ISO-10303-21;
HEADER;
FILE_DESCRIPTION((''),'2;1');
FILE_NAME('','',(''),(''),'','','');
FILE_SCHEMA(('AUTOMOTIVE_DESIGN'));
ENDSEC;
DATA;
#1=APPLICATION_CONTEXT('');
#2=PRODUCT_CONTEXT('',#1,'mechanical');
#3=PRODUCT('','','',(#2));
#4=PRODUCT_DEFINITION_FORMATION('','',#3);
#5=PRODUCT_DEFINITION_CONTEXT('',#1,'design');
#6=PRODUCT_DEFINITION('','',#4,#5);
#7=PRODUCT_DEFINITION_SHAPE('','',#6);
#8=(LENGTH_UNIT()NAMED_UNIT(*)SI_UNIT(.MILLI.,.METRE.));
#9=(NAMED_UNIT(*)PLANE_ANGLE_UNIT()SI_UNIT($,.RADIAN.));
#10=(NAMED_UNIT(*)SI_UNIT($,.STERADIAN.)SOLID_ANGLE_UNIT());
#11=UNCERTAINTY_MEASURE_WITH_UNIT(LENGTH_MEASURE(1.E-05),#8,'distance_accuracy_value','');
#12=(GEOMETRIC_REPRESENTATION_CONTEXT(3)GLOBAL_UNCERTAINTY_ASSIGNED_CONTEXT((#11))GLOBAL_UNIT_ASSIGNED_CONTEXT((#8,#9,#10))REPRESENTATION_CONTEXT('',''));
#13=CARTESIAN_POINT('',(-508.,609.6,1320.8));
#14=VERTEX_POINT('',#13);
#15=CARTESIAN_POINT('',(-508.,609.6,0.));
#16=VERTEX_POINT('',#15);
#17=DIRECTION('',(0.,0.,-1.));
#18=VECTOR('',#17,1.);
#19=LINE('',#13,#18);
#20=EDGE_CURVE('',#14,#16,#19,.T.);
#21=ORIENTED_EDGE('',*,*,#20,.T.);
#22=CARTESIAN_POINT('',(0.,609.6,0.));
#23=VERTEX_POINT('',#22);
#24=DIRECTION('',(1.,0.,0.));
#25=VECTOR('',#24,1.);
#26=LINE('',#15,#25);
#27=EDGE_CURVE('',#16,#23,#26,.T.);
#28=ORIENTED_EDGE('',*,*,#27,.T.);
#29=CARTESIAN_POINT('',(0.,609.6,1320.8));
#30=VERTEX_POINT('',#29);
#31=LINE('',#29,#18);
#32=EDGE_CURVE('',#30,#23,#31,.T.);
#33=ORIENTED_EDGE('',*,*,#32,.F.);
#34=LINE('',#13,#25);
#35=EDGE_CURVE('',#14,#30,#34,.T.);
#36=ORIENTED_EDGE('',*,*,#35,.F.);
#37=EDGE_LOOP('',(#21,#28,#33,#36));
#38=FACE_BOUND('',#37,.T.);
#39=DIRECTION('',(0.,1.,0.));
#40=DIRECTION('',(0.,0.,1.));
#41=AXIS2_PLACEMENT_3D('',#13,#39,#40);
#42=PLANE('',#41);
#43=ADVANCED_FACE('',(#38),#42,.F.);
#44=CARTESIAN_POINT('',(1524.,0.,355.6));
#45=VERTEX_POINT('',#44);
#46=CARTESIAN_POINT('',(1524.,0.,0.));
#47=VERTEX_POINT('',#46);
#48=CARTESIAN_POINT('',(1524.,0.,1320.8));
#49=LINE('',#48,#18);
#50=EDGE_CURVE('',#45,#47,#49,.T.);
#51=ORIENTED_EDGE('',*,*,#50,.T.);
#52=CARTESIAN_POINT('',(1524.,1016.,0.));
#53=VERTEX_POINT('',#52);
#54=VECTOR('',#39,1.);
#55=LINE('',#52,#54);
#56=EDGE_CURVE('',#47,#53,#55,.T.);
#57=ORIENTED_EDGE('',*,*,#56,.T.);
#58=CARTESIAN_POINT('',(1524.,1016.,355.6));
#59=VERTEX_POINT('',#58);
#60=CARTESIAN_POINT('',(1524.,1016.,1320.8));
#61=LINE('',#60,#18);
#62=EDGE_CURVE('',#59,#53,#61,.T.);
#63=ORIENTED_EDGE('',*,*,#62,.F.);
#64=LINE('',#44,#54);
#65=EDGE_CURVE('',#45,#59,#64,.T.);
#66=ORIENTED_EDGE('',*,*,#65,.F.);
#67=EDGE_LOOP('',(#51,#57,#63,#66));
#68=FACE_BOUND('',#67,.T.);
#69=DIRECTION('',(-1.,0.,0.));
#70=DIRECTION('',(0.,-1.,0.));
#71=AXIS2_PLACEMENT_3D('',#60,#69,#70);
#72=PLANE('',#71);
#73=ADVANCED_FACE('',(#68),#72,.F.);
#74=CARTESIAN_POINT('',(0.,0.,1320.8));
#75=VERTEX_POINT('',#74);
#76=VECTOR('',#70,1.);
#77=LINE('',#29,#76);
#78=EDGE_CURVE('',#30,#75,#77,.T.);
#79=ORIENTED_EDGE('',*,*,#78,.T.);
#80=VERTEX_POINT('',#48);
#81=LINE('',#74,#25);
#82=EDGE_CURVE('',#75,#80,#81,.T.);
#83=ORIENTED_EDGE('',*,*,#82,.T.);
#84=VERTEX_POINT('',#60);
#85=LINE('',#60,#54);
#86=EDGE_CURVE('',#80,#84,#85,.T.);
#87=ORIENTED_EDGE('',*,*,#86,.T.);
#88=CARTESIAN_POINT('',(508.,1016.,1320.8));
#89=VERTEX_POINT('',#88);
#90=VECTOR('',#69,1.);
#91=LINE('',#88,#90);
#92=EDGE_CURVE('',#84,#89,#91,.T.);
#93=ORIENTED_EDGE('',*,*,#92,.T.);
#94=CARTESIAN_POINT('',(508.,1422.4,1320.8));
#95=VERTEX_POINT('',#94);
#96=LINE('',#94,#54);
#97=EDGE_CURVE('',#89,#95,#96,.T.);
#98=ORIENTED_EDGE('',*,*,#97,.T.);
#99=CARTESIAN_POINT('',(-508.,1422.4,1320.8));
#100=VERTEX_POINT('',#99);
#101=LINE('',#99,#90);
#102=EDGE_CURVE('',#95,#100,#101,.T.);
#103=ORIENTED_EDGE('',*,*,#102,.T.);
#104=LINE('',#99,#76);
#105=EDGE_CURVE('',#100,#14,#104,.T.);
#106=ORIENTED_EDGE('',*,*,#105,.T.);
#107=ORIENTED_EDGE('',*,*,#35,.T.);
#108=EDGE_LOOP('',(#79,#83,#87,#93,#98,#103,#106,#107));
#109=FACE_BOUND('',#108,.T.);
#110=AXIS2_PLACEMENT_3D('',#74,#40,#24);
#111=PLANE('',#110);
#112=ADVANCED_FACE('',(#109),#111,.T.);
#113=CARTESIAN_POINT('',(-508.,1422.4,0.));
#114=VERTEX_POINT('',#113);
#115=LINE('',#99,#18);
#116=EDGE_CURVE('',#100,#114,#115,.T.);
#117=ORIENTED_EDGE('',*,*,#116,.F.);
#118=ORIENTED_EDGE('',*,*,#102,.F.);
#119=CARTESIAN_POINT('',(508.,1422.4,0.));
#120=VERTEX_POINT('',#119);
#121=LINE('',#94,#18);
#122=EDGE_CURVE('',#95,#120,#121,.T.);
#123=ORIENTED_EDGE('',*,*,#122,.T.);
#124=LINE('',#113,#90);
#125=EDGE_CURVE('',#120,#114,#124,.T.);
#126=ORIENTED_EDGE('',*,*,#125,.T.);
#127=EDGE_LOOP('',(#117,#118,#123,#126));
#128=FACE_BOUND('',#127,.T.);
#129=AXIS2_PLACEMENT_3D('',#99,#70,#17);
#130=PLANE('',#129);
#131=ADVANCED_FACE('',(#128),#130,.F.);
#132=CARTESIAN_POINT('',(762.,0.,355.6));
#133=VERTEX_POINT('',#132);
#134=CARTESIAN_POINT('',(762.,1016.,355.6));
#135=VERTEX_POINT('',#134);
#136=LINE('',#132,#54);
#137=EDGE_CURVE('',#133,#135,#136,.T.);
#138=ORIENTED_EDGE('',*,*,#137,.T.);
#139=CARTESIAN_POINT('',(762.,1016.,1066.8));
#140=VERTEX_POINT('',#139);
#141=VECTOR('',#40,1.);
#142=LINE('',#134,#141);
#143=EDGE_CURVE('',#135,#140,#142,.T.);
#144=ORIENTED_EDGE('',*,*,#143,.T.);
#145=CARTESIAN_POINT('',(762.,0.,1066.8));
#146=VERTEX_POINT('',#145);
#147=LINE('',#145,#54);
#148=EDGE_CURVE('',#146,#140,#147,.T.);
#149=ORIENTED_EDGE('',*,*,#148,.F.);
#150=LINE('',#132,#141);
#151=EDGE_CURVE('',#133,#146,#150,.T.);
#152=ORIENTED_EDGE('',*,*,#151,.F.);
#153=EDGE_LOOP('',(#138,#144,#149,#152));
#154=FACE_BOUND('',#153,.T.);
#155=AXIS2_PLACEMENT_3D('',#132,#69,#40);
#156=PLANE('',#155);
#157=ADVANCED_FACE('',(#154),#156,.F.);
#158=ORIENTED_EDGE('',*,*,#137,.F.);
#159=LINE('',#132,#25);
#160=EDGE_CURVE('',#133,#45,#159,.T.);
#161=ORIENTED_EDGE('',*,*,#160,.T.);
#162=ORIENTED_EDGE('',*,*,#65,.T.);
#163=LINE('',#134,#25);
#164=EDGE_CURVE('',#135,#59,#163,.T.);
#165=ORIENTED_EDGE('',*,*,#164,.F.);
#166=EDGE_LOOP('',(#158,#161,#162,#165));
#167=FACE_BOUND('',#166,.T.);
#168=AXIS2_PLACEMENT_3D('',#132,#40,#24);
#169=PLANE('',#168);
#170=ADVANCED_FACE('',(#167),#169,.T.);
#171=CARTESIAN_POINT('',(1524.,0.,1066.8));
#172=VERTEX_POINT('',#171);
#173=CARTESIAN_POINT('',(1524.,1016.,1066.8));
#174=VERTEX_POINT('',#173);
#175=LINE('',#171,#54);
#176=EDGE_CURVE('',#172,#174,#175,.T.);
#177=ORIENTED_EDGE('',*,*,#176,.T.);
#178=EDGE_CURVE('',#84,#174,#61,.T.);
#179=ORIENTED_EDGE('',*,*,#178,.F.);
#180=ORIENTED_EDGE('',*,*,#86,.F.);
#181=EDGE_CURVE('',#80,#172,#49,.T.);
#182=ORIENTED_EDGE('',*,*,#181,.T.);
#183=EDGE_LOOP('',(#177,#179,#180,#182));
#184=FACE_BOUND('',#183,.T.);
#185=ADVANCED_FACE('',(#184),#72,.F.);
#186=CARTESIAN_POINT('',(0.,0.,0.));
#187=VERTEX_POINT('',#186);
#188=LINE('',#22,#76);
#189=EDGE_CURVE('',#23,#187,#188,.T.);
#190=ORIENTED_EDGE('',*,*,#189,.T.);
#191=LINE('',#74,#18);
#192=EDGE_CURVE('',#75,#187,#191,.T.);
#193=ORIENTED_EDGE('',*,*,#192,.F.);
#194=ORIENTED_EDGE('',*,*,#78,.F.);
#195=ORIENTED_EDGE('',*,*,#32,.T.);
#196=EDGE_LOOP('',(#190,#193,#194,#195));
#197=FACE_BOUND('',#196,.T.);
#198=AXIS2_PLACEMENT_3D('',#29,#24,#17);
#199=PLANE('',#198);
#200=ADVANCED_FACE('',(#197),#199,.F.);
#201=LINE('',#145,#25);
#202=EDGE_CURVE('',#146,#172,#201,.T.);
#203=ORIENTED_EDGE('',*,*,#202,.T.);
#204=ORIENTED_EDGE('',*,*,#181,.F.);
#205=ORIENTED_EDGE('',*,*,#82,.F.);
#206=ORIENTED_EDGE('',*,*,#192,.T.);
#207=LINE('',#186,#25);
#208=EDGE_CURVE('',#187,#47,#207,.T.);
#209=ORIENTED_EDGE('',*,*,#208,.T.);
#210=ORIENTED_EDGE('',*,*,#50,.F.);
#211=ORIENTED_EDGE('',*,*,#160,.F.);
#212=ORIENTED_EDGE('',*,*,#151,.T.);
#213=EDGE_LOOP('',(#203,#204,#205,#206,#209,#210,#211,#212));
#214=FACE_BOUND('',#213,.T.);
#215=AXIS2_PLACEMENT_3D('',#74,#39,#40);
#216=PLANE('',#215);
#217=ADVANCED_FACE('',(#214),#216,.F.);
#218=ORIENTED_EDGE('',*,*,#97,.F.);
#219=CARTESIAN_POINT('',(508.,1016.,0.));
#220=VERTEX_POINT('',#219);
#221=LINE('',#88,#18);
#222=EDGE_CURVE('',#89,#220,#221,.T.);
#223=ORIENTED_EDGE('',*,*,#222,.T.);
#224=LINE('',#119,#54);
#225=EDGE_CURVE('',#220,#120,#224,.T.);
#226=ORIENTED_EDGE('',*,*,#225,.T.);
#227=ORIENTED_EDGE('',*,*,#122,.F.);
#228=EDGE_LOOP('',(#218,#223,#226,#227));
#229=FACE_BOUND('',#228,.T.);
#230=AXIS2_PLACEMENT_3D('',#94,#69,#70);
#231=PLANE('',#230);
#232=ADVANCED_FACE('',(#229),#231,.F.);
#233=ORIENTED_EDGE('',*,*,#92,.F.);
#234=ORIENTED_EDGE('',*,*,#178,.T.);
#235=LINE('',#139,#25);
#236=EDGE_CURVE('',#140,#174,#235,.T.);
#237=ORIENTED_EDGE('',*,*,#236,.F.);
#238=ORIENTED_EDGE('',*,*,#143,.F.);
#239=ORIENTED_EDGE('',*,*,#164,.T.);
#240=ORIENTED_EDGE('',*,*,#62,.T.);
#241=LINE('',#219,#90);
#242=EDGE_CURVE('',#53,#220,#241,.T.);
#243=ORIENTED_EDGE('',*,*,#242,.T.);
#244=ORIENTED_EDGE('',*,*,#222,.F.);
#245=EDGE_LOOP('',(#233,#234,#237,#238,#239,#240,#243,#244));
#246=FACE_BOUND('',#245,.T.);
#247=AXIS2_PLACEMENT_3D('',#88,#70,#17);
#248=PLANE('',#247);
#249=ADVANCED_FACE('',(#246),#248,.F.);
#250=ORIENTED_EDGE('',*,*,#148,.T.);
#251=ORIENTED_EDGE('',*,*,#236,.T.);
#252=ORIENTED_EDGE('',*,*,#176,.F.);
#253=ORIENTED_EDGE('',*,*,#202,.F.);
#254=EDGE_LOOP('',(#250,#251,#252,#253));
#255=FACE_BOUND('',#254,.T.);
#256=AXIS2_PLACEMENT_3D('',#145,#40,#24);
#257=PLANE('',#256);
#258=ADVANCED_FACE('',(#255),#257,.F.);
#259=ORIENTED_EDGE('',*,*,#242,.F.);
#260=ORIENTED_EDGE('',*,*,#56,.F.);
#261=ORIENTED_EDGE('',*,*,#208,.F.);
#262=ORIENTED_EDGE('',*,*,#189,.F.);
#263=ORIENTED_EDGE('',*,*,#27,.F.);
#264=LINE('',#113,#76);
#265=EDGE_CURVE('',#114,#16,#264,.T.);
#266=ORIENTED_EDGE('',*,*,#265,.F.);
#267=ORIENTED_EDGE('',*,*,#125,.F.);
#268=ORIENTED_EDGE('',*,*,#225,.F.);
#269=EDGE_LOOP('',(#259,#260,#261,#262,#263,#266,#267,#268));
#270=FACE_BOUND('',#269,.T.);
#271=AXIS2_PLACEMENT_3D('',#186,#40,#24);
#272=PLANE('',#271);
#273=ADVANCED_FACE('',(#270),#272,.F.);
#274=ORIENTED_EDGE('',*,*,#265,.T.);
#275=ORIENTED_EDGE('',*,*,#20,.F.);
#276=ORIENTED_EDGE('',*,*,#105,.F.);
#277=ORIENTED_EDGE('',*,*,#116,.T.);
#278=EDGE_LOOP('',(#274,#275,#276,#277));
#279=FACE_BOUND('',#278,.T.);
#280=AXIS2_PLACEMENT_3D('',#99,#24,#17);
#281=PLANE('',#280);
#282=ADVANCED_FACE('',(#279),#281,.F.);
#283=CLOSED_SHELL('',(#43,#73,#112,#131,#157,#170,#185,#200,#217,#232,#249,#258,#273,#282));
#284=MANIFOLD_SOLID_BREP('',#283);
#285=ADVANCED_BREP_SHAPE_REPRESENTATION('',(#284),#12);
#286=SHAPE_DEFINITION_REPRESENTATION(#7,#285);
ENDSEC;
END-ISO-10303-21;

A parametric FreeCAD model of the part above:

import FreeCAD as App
import Part
import Sketcher
Q = App.Units.Quantity

doc = App.newDocument("Part")
params = doc.addObject("Spreadsheet::Sheet", "Params")
for row, (alias, value) in enumerate([
    ("sketch1_width", "40 in"),
    ("sketch1_width2", "20 in"),
    ("sketch1_height", "32 in"),
    ("sketch1_height2", "24 in"),
    ("pad1_length", "52 in"),
    ("sketch2_width", "30 in"),
    ("sketch2_height", "28 in"),
    ("pocket1_length", "40 in"),
], start=1):
    params.set(f"A{row}", alias)
    params.set(f"B{row}", "=" + value)
    params.setAlias(f"B{row}", alias)

body = doc.addObject("PartDesign::Body", "Body")

# Sketch on XY plane
sketch1 = body.newObject("Sketcher::SketchObject", "Sketch")
sketch1.AttachmentSupport = (doc.getObject("XY_Plane"), [""])
sketch1.MapMode = "FlatFace"
sketch1.addGeometry(Part.LineSegment(App.Vector(508, 1422, 0), App.Vector(-508, 1422, 0)), False)
sketch1.addGeometry(Part.LineSegment(App.Vector(-508, 1422, 0), App.Vector(-508, 610, 0)), False)
sketch1.addGeometry(Part.LineSegment(App.Vector(-508, 610, 0), App.Vector(0, 610, 0)), False)
sketch1.addGeometry(Part.LineSegment(App.Vector(0, 610, 0), App.Vector(0, 0, 0)), False)
sketch1.addGeometry(Part.LineSegment(App.Vector(0, 0, 0), App.Vector(1524, 0, 0)), False)
sketch1.addGeometry(Part.LineSegment(App.Vector(1524, 0, 0), App.Vector(1524, 1016, 0)), False)
sketch1.addGeometry(Part.LineSegment(App.Vector(1524, 1016, 0), App.Vector(508, 1016, 0)), False)
sketch1.addGeometry(Part.LineSegment(App.Vector(508, 1016, 0), App.Vector(508, 1422, 0)), False)
sketch1.addConstraint(Sketcher.Constraint("Coincident", 0, 2, 1, 1))
sketch1.addConstraint(Sketcher.Constraint("Coincident", 1, 2, 2, 1))
sketch1.addConstraint(Sketcher.Constraint("Coincident", 2, 2, 3, 1))
sketch1.addConstraint(Sketcher.Constraint("Coincident", 3, 2, 4, 1))
sketch1.addConstraint(Sketcher.Constraint("Coincident", 4, 2, 5, 1))
sketch1.addConstraint(Sketcher.Constraint("Coincident", 5, 2, 6, 1))
sketch1.addConstraint(Sketcher.Constraint("Coincident", 6, 2, 7, 1))
sketch1.addConstraint(Sketcher.Constraint("Coincident", 7, 2, 0, 1))
sketch1.addConstraint(Sketcher.Constraint("Horizontal", 0))
sketch1.addConstraint(Sketcher.Constraint("Vertical", 1))
sketch1.addConstraint(Sketcher.Constraint("Horizontal", 2))
sketch1.addConstraint(Sketcher.Constraint("Vertical", 3))
sketch1.addConstraint(Sketcher.Constraint("Horizontal", 4))
sketch1.addConstraint(Sketcher.Constraint("Vertical", 5))
sketch1.addConstraint(Sketcher.Constraint("Horizontal", 6))
sketch1.addConstraint(Sketcher.Constraint("Vertical", 7))
sketch1.addConstraint(Sketcher.Constraint("Coincident", 3, 2, -1, 1))
sketch1.addConstraint(Sketcher.Constraint("Equal", 0, 6))
sketch1.addConstraint(Sketcher.Constraint("Equal", 6, 5))
sketch1.addConstraint(Sketcher.Constraint("DistanceX", 0, 2, 0, 1, Q("40 in")))
sketch1.addConstraint(Sketcher.Constraint("DistanceX", 2, 1, 2, 2, Q("20 in")))
sketch1.addConstraint(Sketcher.Constraint("DistanceY", 1, 2, 1, 1, Q("32 in")))
sketch1.addConstraint(Sketcher.Constraint("DistanceY", 3, 2, 3, 1, Q("24 in")))
sketch1.setExpression("Constraints[19]", "Params.sketch1_width")
sketch1.setExpression("Constraints[20]", "Params.sketch1_width2")
sketch1.setExpression("Constraints[21]", "Params.sketch1_height")
sketch1.setExpression("Constraints[22]", "Params.sketch1_height2")
pad1 = body.newObject("PartDesign::Pad", "Pad")
pad1.Profile = sketch1
pad1.setExpression("Length", "Params.pad1_length")

# Sketch on XZ plane
sketch2 = body.newObject("Sketcher::SketchObject", "Sketch001")
sketch2.AttachmentSupport = (doc.getObject("XZ_Plane"), [""])
sketch2.MapMode = "FlatFace"
sketch2.AttachmentOffset = App.Placement(App.Vector(0, 0, -40 * 25.4), App.Rotation())
sketch2.addGeometry(Part.LineSegment(App.Vector(762, 356, 0), App.Vector(762, 1067, 0)), False)
sketch2.addGeometry(Part.LineSegment(App.Vector(762, 1067, 0), App.Vector(1524, 1067, 0)), False)
sketch2.addGeometry(Part.LineSegment(App.Vector(1524, 1067, 0), App.Vector(1524, 356, 0)), False)
sketch2.addGeometry(Part.LineSegment(App.Vector(1524, 356, 0), App.Vector(762, 356, 0)), False)
sketch2.addConstraint(Sketcher.Constraint("Coincident", 0, 2, 1, 1))
sketch2.addConstraint(Sketcher.Constraint("Coincident", 1, 2, 2, 1))
sketch2.addConstraint(Sketcher.Constraint("Coincident", 2, 2, 3, 1))
sketch2.addConstraint(Sketcher.Constraint("Coincident", 3, 2, 0, 1))
sketch2.addConstraint(Sketcher.Constraint("Vertical", 0))
sketch2.addConstraint(Sketcher.Constraint("Horizontal", 1))
sketch2.addConstraint(Sketcher.Constraint("Vertical", 2))
sketch2.addConstraint(Sketcher.Constraint("Horizontal", 3))
sketch2.addConstraint(Sketcher.Constraint("DistanceX", 1, 1, 1, 2, Q("30 in")))
sketch2.addConstraint(Sketcher.Constraint("DistanceY", 0, 1, 0, 2, Q("28 in")))
sketch2.addConstraint(Sketcher.Constraint("DistanceX", -1, 1, 0, 2, Q("30 in")))
sketch2.addConstraint(Sketcher.Constraint("DistanceY", -1, 1, 0, 2, Q("42 in")))
sketch2.setExpression("Constraints[8]", "Params.sketch2_width")
sketch2.setExpression("Constraints[9]", "Params.sketch2_height")
pocket1 = body.newObject("PartDesign::Pocket", "Pocket")
pocket1.Profile = sketch2
pocket1.setExpression("Length", "Params.pocket1_length")
pocket1.Reversed = True

doc.recompute()
